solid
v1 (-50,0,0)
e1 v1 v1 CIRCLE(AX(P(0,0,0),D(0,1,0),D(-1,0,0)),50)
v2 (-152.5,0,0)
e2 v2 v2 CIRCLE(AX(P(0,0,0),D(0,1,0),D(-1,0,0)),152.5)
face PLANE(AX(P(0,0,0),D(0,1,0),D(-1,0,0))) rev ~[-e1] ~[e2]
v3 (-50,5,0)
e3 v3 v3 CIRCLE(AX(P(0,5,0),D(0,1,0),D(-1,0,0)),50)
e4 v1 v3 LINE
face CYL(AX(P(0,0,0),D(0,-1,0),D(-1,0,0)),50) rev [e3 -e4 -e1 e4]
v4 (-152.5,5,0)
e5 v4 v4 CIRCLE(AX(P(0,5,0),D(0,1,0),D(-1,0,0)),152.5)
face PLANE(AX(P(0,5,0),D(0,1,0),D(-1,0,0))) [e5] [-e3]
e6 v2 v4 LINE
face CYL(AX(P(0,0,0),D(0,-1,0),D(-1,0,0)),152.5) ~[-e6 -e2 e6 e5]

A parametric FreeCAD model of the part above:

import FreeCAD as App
import Part
import Sketcher

V = App.Vector

doc = App.newDocument("Part")
params = doc.addObject("Spreadsheet::Sheet", "Params")
for row, (alias, value) in enumerate([
    ("sketch1_diameter", "305 mm"),
    ("sketch1_diameter2", "100 mm"),
    ("pad1_length", "5 mm"),
], start=1):
    params.set(f"A{row}", alias)
    params.set(f"B{row}", "=" + value)
    params.setAlias(f"B{row}", alias)

body = doc.addObject("PartDesign::Body", "Body")

# Sketch on XZ plane
sketch1 = doc.addObject("Sketcher::SketchObject", "Sketch")
body.addObject(sketch1)
sketch1.AttachmentSupport = (doc.XZ_Plane, [""])
sketch1.MapMode = "FlatFace"
sketch1.addGeometry([
    Part.Circle(V(0, 0, 0), V(0, 0, 1), 152),
    Part.Circle(V(0, 0, 0), V(0, 0, 1), 50),
], False)
sketch1.addConstraint([
    Sketcher.Constraint("Coincident", 0, 3, -1, 1),
    Sketcher.Constraint("Coincident", 1, 3, -1, 1),
    Sketcher.Constraint("Diameter", 0, 305.0),
    Sketcher.Constraint("Diameter", 1, 100.0),
])
sketch1.setExpression("Constraints[2]", "Params.sketch1_diameter")
sketch1.setExpression("Constraints[3]", "Params.sketch1_diameter2")
pad1 = doc.addObject("PartDesign::Pad", "Pad")
body.addObject(pad1)
pad1.Profile = sketch1
pad1.setExpression("Length", "Params.pad1_length")
pad1.Reversed = True

doc.recompute()
